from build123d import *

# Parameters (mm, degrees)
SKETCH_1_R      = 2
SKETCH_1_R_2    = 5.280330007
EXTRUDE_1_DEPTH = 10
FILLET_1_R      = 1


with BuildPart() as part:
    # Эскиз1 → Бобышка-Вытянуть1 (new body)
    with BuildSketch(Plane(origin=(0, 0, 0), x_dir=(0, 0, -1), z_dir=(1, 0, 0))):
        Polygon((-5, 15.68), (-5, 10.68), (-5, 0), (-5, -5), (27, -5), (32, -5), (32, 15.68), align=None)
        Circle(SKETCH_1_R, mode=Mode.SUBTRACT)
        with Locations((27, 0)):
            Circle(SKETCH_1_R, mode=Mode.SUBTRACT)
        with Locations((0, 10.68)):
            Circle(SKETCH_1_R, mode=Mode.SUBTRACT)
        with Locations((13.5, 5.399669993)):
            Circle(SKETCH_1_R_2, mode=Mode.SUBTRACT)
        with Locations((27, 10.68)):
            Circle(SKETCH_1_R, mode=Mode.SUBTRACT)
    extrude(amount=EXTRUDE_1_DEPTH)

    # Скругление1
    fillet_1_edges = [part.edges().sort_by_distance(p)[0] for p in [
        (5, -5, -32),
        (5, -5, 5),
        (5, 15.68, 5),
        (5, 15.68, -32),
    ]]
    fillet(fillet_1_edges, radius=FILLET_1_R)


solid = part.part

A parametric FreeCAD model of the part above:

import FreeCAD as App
import Part
import Sketcher
from FreeCAD import Vector


def edges_at(feature, points):
    """Names of the edges that pass closest to the given points."""
    edges = feature.Shape.Edges
    near = lambda p: min(range(len(edges)), key=lambda i: edges[i].distToShape(Part.Vertex(*p))[0])
    return sorted({f"Edge{near(p) + 1}" for p in points})


def add_polygon(sketch, points):
    """Adds a closed chain of lines whose ends are joined by coincident constraints."""
    first, n = sketch.GeometryCount, len(points)
    for a, b in zip(points, points[1:] + points[:1]):
        sketch.addGeometry(Part.LineSegment(App.Vector(*a, 0), App.Vector(*b, 0)), False)
    for i in range(n):
        sketch.addConstraint(Sketcher.Constraint("Coincident", first + i, 2, first + (i + 1) % n, 1))

doc = App.newDocument("Part")
body = doc.addObject("PartDesign::Body", "Body")

# Sketch on YZ plane
sketch1 = doc.addObject("Sketcher::SketchObject", "Sketch")
body.addObject(sketch1)
sketch1.AttachmentSupport = (doc.YZ_Plane, [""])
sketch1.MapMode = "FlatFace"
add_polygon(sketch1, [(15.7, 5), (-5, 5), (-5, -32), (15.7, -32)])  # lines 0-3
sketch1.addGeometry(Part.Circle(Vector(0, 0, 0), Vector(0, 0, 1), 2), False)  # 4
sketch1.addGeometry(Part.Circle(Vector(0, -27, 0), Vector(0, 0, 1), 2), False)  # 5
sketch1.addGeometry(Part.Circle(Vector(10.7, 0, 0), Vector(0, 0, 1), 2), False)  # 6
sketch1.addGeometry(Part.Circle(Vector(5.4, -13.5, 0), Vector(0, 0, 1), 5.3), False)  # 7
sketch1.addGeometry(Part.Circle(Vector(10.7, -27, 0), Vector(0, 0, 1), 2), False)  # 8
sketch1.addConstraint(Sketcher.Constraint("Horizontal", 0))
sketch1.addConstraint(Sketcher.Constraint("Vertical", 1))
sketch1.addConstraint(Sketcher.Constraint("Horizontal", 2))
sketch1.addConstraint(Sketcher.Constraint("Vertical", 3))
sketch1.addConstraint(Sketcher.Constraint("Coincident", 4, 3, -1, 1))
sketch1.addConstraint(Sketcher.Constraint("Equal", 4, 5))
sketch1.addConstraint(Sketcher.Constraint("Equal", 5, 6))
sketch1.addConstraint(Sketcher.Constraint("Equal", 6, 8))
sketch1.addConstraint(Sketcher.Constraint("PointOnObject", 5, 3, -2))
sketch1.addConstraint(Sketcher.Constraint("PointOnObject", 6, 3, -1))
sketch1.addConstraint(Sketcher.Constraint("Horizontal", 5, 3, 8, 3))
sketch1.addConstraint(Sketcher.Constraint("Vertical", 6, 3, 8, 3))
sketch1.addConstraint(Sketcher.Constraint("Diameter", 4, 4.0))
sketch1.addConstraint(Sketcher.Constraint("DistanceY", 1, 2, 1, 1, 37.0))
sketch1.addConstraint(Sketcher.Constraint("DistanceY", 5, 3, -1, 1, 27.0))
sketch1.addConstraint(Sketcher.Constraint("DistanceX", 0, 2, -1, 1, 5.0))
sketch1.addConstraint(Sketcher.Constraint("DistanceY", -1, 1, 0, 2, 5.0))
sketch1.addConstraint(Sketcher.Constraint("DistanceX", 8, 3, 2, 2, 5.0))
sketch1.addConstraint(Sketcher.Constraint("DistanceX", 0, 2, 0, 1, 20.68))
sketch1.addConstraint(Sketcher.Constraint("DistanceY", 7, 3, -1, 1, 13.5))
sketch1.addConstraint(Sketcher.Constraint("Diameter", 7, 10.56066))
sketch1.addConstraint(Sketcher.Constraint("DistanceX", -1, 1, 7, 3, 5.39967))
pad1 = doc.addObject("PartDesign::Pad", "Pad")
body.addObject(pad1)
pad1.Profile = sketch1
pad1.Length = 10
doc.recompute()

fillet = doc.addObject("PartDesign::Fillet", "Fillet")
body.addObject(fillet)
fillet.Base = (pad1, edges_at(pad1, [
    (5, -5, -32),
    (5, -5, 5),
    (5, 15.68, 5),
    (5, 15.68, -32),
]))
fillet.Radius = 1

doc.recompute()
